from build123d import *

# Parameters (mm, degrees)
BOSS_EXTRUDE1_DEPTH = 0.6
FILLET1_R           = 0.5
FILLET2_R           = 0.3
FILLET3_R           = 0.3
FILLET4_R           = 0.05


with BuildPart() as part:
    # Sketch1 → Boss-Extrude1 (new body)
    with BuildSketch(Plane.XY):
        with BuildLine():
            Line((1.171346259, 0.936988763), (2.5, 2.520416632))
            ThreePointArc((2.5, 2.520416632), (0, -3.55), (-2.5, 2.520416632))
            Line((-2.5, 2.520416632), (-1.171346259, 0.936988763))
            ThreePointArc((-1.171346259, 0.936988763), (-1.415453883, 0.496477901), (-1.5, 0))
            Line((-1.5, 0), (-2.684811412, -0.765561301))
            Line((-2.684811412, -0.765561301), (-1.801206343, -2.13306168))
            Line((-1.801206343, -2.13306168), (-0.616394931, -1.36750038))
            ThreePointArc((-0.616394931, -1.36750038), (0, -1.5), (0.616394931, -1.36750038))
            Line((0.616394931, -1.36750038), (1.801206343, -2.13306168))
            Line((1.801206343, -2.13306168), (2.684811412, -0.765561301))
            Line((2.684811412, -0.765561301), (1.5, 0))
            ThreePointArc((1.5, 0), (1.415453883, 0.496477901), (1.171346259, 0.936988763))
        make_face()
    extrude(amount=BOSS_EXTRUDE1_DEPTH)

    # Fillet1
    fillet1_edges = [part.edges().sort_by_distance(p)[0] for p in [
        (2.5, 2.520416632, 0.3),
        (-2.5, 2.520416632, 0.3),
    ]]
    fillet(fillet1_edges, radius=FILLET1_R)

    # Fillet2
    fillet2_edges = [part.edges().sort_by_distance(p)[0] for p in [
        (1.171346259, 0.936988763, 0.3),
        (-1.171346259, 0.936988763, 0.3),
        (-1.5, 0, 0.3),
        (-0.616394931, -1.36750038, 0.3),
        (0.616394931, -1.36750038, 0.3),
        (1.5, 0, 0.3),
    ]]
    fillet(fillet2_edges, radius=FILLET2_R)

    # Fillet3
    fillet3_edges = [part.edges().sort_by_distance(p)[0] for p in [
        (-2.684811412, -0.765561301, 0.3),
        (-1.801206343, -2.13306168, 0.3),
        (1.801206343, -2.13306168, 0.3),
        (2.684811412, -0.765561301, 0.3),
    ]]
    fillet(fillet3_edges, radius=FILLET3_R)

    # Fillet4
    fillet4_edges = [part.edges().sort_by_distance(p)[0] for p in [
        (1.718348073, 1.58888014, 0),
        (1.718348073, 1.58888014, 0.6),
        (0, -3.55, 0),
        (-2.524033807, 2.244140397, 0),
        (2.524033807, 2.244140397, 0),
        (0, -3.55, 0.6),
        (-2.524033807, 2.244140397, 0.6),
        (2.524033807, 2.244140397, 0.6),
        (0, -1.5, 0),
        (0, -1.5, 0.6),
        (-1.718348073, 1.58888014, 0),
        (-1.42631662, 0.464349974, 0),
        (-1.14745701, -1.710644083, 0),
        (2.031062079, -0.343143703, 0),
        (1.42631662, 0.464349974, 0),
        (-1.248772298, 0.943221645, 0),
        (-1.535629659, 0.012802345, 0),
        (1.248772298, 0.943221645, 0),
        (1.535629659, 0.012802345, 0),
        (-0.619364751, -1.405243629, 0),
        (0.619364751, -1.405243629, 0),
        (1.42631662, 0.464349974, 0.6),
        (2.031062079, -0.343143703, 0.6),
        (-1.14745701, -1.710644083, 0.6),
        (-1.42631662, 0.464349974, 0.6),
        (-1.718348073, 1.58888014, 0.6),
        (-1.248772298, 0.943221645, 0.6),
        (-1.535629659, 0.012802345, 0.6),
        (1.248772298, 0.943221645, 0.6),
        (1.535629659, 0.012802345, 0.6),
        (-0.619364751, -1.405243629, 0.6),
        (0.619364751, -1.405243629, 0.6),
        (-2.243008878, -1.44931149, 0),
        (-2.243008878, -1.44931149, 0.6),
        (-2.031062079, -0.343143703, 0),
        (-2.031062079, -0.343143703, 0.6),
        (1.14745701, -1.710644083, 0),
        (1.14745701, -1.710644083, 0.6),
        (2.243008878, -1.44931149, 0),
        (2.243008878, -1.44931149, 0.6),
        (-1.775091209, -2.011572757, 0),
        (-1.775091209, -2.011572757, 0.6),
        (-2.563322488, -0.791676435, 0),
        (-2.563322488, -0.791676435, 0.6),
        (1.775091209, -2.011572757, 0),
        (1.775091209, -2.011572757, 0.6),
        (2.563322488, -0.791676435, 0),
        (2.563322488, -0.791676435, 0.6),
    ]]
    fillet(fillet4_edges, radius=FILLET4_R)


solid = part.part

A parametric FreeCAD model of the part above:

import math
import FreeCAD as App
import Part
import Sketcher
Q = App.Units.Quantity


def edges_at(feature, points):
    """Names of the edges that pass closest to the given points."""
    edges = feature.Shape.Edges
    near = lambda p: min(range(len(edges)), key=lambda i: edges[i].distToShape(Part.Vertex(*p))[0])
    return sorted({f"Edge{near(p) + 1}" for p in points})

doc = App.newDocument("Part")
body = doc.addObject("PartDesign::Body", "Body")

sketch1 = body.newObject("Sketcher::SketchObject", "Sketch")
sketch1.AttachmentSupport = (doc.getObject("XY_Plane"), [""])
sketch1.MapMode = "FlatFace"
sketch1.addGeometry(Part.LineSegment(App.Vector(2.5, 2.5, 0), App.Vector(1.2, 0.9, 0)), False)
sketch1.addGeometry(Part.ArcOfCircle(Part.Circle(App.Vector(0, 0, 0), App.Vector(0, 0, 1), 1.5), math.radians(0), math.radians(39)), False)
sketch1.addGeometry(Part.LineSegment(App.Vector(1.5, 0, 0), App.Vector(2.7, -0.8, 0)), False)
sketch1.addGeometry(Part.LineSegment(App.Vector(2.7, -0.8, 0), App.Vector(1.8, -2.1, 0)), False)
sketch1.addGeometry(Part.LineSegment(App.Vector(1.8, -2.1, 0), App.Vector(0.6, -1.4, 0)), False)
sketch1.addGeometry(Part.ArcOfCircle(Part.Circle(App.Vector(0, 0, 0), App.Vector(0, 0, 1), 1.5), math.radians(-114), math.radians(-66)), False)
sketch1.addGeometry(Part.LineSegment(App.Vector(-0.6, -1.4, 0), App.Vector(-1.8, -2.1, 0)), False)
sketch1.addGeometry(Part.LineSegment(App.Vector(-1.8, -2.1, 0), App.Vector(-2.7, -0.8, 0)), False)
sketch1.addGeometry(Part.LineSegment(App.Vector(-2.7, -0.8, 0), App.Vector(-1.5, 0, 0)), False)
sketch1.addGeometry(Part.ArcOfCircle(Part.Circle(App.Vector(0, 0, 0), App.Vector(0, 0, 1), 1.5), math.radians(141), math.radians(180)), False)
sketch1.addGeometry(Part.LineSegment(App.Vector(-1.2, 0.9, 0), App.Vector(-2.5, 2.5, 0)), False)
sketch1.addGeometry(Part.ArcOfCircle(Part.Circle(App.Vector(0, 0, 0), App.Vector(0, 0, 1), 3.5), math.radians(135), math.radians(405)), False)
sketch1.addConstraint(Sketcher.Constraint("Coincident", 0, 2, 1, 2))
sketch1.addConstraint(Sketcher.Constraint("Coincident", 1, 1, 2, 1))
sketch1.addConstraint(Sketcher.Constraint("Coincident", 2, 2, 3, 1))
sketch1.addConstraint(Sketcher.Constraint("Coincident", 3, 2, 4, 1))
sketch1.addConstraint(Sketcher.Constraint("Coincident", 4, 2, 5, 2))
sketch1.addConstraint(Sketcher.Constraint("Coincident", 5, 1, 6, 1))
sketch1.addConstraint(Sketcher.Constraint("Coincident", 6, 2, 7, 1))
sketch1.addConstraint(Sketcher.Constraint("Coincident", 7, 2, 8, 1))
sketch1.addConstraint(Sketcher.Constraint("Coincident", 8, 2, 9, 2))
sketch1.addConstraint(Sketcher.Constraint("Coincident", 9, 1, 10, 1))
sketch1.addConstraint(Sketcher.Constraint("Coincident", 10, 2, 11, 1))
sketch1.addConstraint(Sketcher.Constraint("Coincident", 11, 2, 0, 1))
sketch1.addConstraint(Sketcher.Constraint("Coincident", 1, 3, -1, 1))
sketch1.addConstraint(Sketcher.Constraint("Coincident", 5, 3, -1, 1))
sketch1.addConstraint(Sketcher.Constraint("Coincident", 9, 3, -1, 1))
sketch1.addConstraint(Sketcher.Constraint("Coincident", 11, 3, -1, 1))
sketch1.addConstraint(Sketcher.Constraint("Equal", 1, 5))
sketch1.addConstraint(Sketcher.Constraint("Equal", 5, 9))
sketch1.addConstraint(Sketcher.Constraint("Symmetric", 3, 2, 6, 2, -2))
sketch1.addConstraint(Sketcher.Constraint("Symmetric", 2, 2, 7, 2, -2))
sketch1.addConstraint(Sketcher.Constraint("PointOnObject", 1, 1, -1))
sketch1.addConstraint(Sketcher.Constraint("PointOnObject", 8, 2, -1))
sketch1.addConstraint(Sketcher.Constraint("Perpendicular", 2, 3))
sketch1.addConstraint(Sketcher.Constraint("Perpendicular", 3, 4))
sketch1.addConstraint(Sketcher.Constraint("Perpendicular", 6, 7))
sketch1.addConstraint(Sketcher.Constraint("Horizontal", 0, 2, 9, 1))
sketch1.addConstraint(Sketcher.Constraint("Horizontal", 10, 2, 11, 2))
sketch1.addConstraint(Sketcher.Constraint("Equal", 2, 4))
sketch1.addConstraint(Sketcher.Constraint("Radius", 1, 1.5))
sketch1.addConstraint(Sketcher.Constraint("Angle", 0, Q("-130 deg")))
sketch1.addConstraint(Sketcher.Constraint("Radius", 11, 3.55))
sketch1.addConstraint(Sketcher.Constraint("DistanceX", 10, 2, 8, 2, 1.0))
sketch1.addConstraint(Sketcher.Constraint("DistanceY", 4, 2, -1, 1, 1.3675))
sketch1.addConstraint(Sketcher.Constraint("DistanceX", 6, 2, 4, 2, 2.417601))
pad1 = body.newObject("PartDesign::Pad", "Pad")
pad1.Profile = sketch1
pad1.Length = 0.6
doc.recompute()

fillet = body.newObject("PartDesign::Fillet", "Fillet")
fillet.Base = (pad1, edges_at(pad1, [(2.5, 2.52, 0.3), (-2.5, 2.52, 0.3)]))
fillet.Radius = 0.5
doc.recompute()

fillet2 = body.newObject("PartDesign::Fillet", "Fillet001")
fillet2.Base = (fillet, edges_at(fillet, [
    (1.171, 0.937, 0.3),
    (-1.171, 0.937, 0.3),
    (-1.5, 0, 0.3),
    (-0.616, -1.368, 0.3),
    (0.616, -1.368, 0.3),
    (1.5, 0, 0.3),
]))
fillet2.Radius = 0.3
doc.recompute()

fillet3 = body.newObject("PartDesign::Fillet", "Fillet002")
fillet3.Base = (fillet2, edges_at(fillet2, [
    (-2.685, -0.766, 0.3),
    (-1.801, -2.133, 0.3),
    (1.801, -2.133, 0.3),
    (2.685, -0.766, 0.3),
]))
fillet3.Radius = 0.3
doc.recompute()

fillet4 = body.newObject("PartDesign::Fillet", "Fillet003")
fillet4.Base = (fillet3, edges_at(fillet3, [
    (1.718, 1.589, 0),
    (1.718, 1.589, 0.6),
    (0, -3.55, 0),
    (-2.524, 2.244, 0),
    (2.524, 2.244, 0),
    (0, -3.55, 0.6),
    (-2.524, 2.244, 0.6),
    (2.524, 2.244, 0.6),
    (0, -1.5, 0),
    (0, -1.5, 0.6),
    (-1.718, 1.589, 0),
    (-1.426, 0.464, 0),
    (-1.147, -1.711, 0),
    (2.031, -0.343, 0),
    (1.426, 0.464, 0),
    (-1.249, 0.943, 0),
    (-1.536, 0.013, 0),
    (1.249, 0.943, 0),
    (1.536, 0.013, 0),
    (-0.619, -1.405, 0),
    (0.619, -1.405, 0),
    (1.426, 0.464, 0.6),
    (2.031, -0.343, 0.6),
    (-1.147, -1.711, 0.6),
    (-1.426, 0.464, 0.6),
    (-1.718, 1.589, 0.6),
    (-1.249, 0.943, 0.6),
    (-1.536, 0.013, 0.6),
    (1.249, 0.943, 0.6),
    (1.536, 0.013, 0.6),
    (-0.619, -1.405, 0.6),
    (0.619, -1.405, 0.6),
    (-2.243, -1.449, 0),
    (-2.243, -1.449, 0.6),
    (-2.031, -0.343, 0),
    (-2.031, -0.343, 0.6),
    (1.147, -1.711, 0),
    (1.147, -1.711, 0.6),
    (2.243, -1.449, 0),
    (2.243, -1.449, 0.6),
    (-1.775, -2.012, 0),
    (-1.775, -2.012, 0.6),
    (-2.563, -0.792, 0),
    (-2.563, -0.792, 0.6),
    (1.775, -2.012, 0),
    (1.775, -2.012, 0.6),
    (2.563, -0.792, 0),
    (2.563, -0.792, 0.6),
]))
fillet4.Radius = 0.05

doc.recompute()
